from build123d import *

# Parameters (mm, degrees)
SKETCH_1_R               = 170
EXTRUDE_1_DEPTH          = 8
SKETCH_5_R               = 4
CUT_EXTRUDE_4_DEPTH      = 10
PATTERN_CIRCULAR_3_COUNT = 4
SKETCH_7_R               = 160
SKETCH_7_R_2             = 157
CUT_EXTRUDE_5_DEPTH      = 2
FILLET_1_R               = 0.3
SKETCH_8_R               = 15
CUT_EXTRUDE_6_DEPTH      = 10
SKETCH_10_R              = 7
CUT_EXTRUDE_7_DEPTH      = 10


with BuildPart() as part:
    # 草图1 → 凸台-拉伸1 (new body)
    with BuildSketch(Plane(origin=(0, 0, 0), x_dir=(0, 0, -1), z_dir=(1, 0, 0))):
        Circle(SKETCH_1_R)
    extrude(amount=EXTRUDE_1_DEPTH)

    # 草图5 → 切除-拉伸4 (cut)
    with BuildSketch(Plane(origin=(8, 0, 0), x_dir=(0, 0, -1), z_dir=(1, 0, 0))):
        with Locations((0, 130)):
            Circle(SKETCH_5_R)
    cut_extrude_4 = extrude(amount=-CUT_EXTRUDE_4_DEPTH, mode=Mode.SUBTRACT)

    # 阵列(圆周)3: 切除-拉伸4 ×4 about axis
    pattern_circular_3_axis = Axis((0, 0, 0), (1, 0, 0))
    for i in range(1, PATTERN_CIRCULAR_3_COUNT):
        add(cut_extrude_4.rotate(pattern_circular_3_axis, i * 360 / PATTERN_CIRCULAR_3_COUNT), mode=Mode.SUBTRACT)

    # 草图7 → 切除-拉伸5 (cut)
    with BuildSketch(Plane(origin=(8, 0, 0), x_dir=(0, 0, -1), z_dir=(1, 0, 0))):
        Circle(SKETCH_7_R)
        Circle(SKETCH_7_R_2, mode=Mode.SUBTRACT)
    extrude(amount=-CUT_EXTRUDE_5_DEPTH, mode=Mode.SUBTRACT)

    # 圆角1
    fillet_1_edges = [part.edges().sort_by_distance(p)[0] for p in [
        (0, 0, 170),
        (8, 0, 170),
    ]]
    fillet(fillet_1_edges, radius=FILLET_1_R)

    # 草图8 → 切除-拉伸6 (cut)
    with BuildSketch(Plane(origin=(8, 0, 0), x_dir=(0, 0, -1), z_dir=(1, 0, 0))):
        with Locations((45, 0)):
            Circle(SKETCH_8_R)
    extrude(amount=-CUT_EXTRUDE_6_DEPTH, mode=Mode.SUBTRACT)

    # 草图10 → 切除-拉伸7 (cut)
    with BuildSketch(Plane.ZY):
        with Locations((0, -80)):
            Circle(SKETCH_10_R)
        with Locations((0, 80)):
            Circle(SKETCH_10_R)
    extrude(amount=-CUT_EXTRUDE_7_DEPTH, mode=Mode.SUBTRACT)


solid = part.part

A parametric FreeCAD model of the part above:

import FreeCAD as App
import Part
import Sketcher
from FreeCAD import Vector
Q = App.Units.Quantity


def edges_at(feature, points):
    """Names of the edges that pass closest to the given points."""
    edges = feature.Shape.Edges
    near = lambda p: min(range(len(edges)), key=lambda i: edges[i].distToShape(Part.Vertex(*p))[0])
    return sorted({f"Edge{near(p) + 1}" for p in points})

doc = App.newDocument("Part")
params = doc.addObject("Spreadsheet::Sheet", "Params")
for row, (alias, value) in enumerate([
    ("sketch1_diameter", "340 mm"),
    ("pad1_length", "8 mm"),
    ("sketch2_diameter", "8 mm"),
    ("pocket1_length", "10 mm"),
    ("sketch3_diameter", "320 mm"),
    ("sketch3_diameter2", "314 mm"),
    ("pocket2_length", "2 mm"),
    ("fillet_radius", "0.3 mm"),
    ("sketch4_diameter", "30 mm"),
    ("pocket3_length", "10 mm"),
    ("sketch5_diameter", "14 mm"),
    ("pocket4_length", "10 mm"),
], start=1):
    params.set(f"A{row}", alias)
    params.set(f"B{row}", "=" + value)
    params.setAlias(f"B{row}", alias)

body = doc.addObject("PartDesign::Body", "Body")

# Sketch on YZ plane
sketch1 = body.newObject("Sketcher::SketchObject", "Sketch")
sketch1.AttachmentSupport = (doc.getObject("YZ_Plane"), [""])
sketch1.MapMode = "FlatFace"
sketch1.addGeometry(Part.Circle(Vector(0, 0, 0), Vector(0, 0, 1), 170), False)
sketch1.addConstraint([
    Sketcher.Constraint("Coincident", 0, 3, -1, 1),
    Sketcher.Constraint("Diameter", 0, Q("340 mm")),
])
sketch1.setExpression("Constraints[1]", "Params.sketch1_diameter")
pad1 = body.newObject("PartDesign::Pad", "Pad")
pad1.Profile = sketch1
pad1.setExpression("Length", "Params.pad1_length")

# Sketch on YZ plane
sketch2 = body.newObject("Sketcher::SketchObject", "Sketch001")
sketch2.AttachmentSupport = (doc.getObject("YZ_Plane"), [""])
sketch2.MapMode = "FlatFace"
sketch2.AttachmentOffset = App.Placement(Vector(0, 0, 8), App.Rotation())
sketch2.addGeometry(Part.Circle(Vector(130, 0, 0), Vector(0, 0, 1), 4), False)
sketch2.addConstraint([
    Sketcher.Constraint("PointOnObject", 0, 3, -1),
    Sketcher.Constraint("Diameter", 0, Q("8 mm")),
    Sketcher.Constraint("DistanceX", -1, 1, 0, 3, Q("130 mm")),
])
sketch2.setExpression("Constraints[1]", "Params.sketch2_diameter")
pocket1 = body.newObject("PartDesign::Pocket", "Pocket")
pocket1.Profile = sketch2
pocket1.setExpression("Length", "Params.pocket1_length")
doc.recompute()

polarpattern = body.newObject("PartDesign::PolarPattern", "PolarPattern")
polarpattern.Originals = [pocket1]
polarpattern.Axis = (doc.getObject("X_Axis"), [""])
polarpattern.Angle = 360
polarpattern.Occurrences = 4
body.Tip = polarpattern

# Sketch on YZ plane
sketch3 = body.newObject("Sketcher::SketchObject", "Sketch002")
sketch3.AttachmentSupport = (doc.getObject("YZ_Plane"), [""])
sketch3.MapMode = "FlatFace"
sketch3.AttachmentOffset = App.Placement(Vector(0, 0, 8), App.Rotation())
sketch3.addGeometry([
    Part.Circle(Vector(0, 0, 0), Vector(0, 0, 1), 160),
    Part.Circle(Vector(0, 0, 0), Vector(0, 0, 1), 157),
], False)
sketch3.addConstraint([
    Sketcher.Constraint("Coincident", 0, 3, -1, 1),
    Sketcher.Constraint("Coincident", 1, 3, -1, 1),
    Sketcher.Constraint("Diameter", 0, Q("320 mm")),
    Sketcher.Constraint("Diameter", 1, Q("314 mm")),
])
sketch3.setExpression("Constraints[2]", "Params.sketch3_diameter")
sketch3.setExpression("Constraints[3]", "Params.sketch3_diameter2")
pocket2 = body.newObject("PartDesign::Pocket", "Pocket001")
pocket2.Profile = sketch3
pocket2.setExpression("Length", "Params.pocket2_length")
doc.recompute()

fillet = body.newObject("PartDesign::Fillet", "Fillet")
fillet.Base = (pocket2, edges_at(pocket2, [(0, 0, 170), (8, 0, 170)]))
fillet.setExpression("Radius", "Params.fillet_radius")

# Sketch on YZ plane
sketch4 = body.newObject("Sketcher::SketchObject", "Sketch003")
sketch4.AttachmentSupport = (doc.getObject("YZ_Plane"), [""])
sketch4.MapMode = "FlatFace"
sketch4.AttachmentOffset = App.Placement(Vector(0, 0, 8), App.Rotation())
sketch4.addGeometry(Part.Circle(Vector(0, -45, 0), Vector(0, 0, 1), 15), False)
sketch4.addConstraint([
    Sketcher.Constraint("PointOnObject", 0, 3, -2),
    Sketcher.Constraint("Diameter", 0, Q("30 mm")),
    Sketcher.Constraint("DistanceY", 0, 3, -1, 1, Q("45 mm")),
])
sketch4.setExpression("Constraints[1]", "Params.sketch4_diameter")
pocket3 = body.newObject("PartDesign::Pocket", "Pocket002")
pocket3.Profile = sketch4
pocket3.setExpression("Length", "Params.pocket3_length")

# Sketch on YZ plane
sketch5 = body.newObject("Sketcher::SketchObject", "Sketch004")
sketch5.AttachmentSupport = (doc.getObject("YZ_Plane"), [""])
sketch5.MapMode = "FlatFace"
sketch5.addGeometry([
    Part.Circle(Vector(-80, 0, 0), Vector(0, 0, 1), 7),
    Part.Circle(Vector(80, 0, 0), Vector(0, 0, 1), 7),
], False)
sketch5.addConstraint([
    Sketcher.Constraint("Equal", 0, 1),
    Sketcher.Constraint("Symmetric", 0, 3, 1, 3, -1, 1),
    Sketcher.Constraint("PointOnObject", 0, 3, -1),
    Sketcher.Constraint("Diameter", 0, Q("14 mm")),
    Sketcher.Constraint("DistanceX", 0, 3, -1, 1, Q("80 mm")),
])
sketch5.setExpression("Constraints[3]", "Params.sketch5_diameter")
pocket4 = body.newObject("PartDesign::Pocket", "Pocket003")
pocket4.Profile = sketch5
pocket4.setExpression("Length", "Params.pocket4_length")
pocket4.Reversed = True

doc.recompute()
